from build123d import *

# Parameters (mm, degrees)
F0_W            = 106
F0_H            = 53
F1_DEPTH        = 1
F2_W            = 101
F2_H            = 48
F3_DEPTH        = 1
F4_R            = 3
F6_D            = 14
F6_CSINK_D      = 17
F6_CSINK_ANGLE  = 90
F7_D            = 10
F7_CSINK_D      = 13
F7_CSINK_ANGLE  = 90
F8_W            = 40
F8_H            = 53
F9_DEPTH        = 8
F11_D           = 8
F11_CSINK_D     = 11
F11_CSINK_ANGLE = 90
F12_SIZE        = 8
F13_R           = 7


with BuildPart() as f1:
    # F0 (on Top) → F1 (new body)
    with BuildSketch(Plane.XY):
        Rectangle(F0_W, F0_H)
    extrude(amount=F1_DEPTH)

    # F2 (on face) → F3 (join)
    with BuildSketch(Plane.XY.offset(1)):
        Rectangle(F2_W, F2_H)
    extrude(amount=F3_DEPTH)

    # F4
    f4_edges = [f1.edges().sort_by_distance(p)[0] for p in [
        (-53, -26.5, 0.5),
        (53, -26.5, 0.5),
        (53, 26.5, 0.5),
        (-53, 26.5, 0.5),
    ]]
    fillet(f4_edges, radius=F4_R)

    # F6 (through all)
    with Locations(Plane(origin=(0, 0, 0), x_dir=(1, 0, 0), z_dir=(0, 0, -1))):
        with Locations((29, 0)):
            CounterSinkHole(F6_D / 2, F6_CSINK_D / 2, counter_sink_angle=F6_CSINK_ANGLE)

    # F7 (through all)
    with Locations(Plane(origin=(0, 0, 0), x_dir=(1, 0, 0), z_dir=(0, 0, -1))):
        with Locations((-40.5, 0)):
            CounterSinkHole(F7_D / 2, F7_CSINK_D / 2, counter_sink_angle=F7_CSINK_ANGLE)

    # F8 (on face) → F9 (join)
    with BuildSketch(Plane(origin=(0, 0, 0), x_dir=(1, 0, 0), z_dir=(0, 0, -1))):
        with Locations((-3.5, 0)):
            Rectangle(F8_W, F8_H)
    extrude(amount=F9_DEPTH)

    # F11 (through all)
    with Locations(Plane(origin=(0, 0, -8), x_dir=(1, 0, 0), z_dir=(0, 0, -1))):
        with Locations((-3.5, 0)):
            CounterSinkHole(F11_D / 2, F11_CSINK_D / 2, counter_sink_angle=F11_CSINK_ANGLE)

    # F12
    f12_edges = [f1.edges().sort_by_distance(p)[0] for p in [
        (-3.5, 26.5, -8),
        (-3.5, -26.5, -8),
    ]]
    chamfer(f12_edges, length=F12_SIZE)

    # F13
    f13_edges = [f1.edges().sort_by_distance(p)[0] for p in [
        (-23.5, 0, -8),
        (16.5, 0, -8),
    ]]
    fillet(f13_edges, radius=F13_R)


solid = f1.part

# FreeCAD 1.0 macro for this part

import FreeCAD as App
import Part
import Sketcher
from FreeCAD import Vector


def edges_at(feature, points):
    """Names of the edges that pass closest to the given points."""
    edges = feature.Shape.Edges
    near = lambda p: min(range(len(edges)), key=lambda i: edges[i].distToShape(Part.Vertex(*p))[0])
    return sorted({f"Edge{near(p) + 1}" for p in points})


def add_polygon(sketch, points):
    """Adds a closed chain of lines whose ends are joined by coincident constraints."""
    first, n = sketch.GeometryCount, len(points)
    for a, b in zip(points, points[1:] + points[:1]):
        sketch.addGeometry(Part.LineSegment(App.Vector(*a, 0), App.Vector(*b, 0)), False)
    for i in range(n):
        sketch.addConstraint(Sketcher.Constraint("Coincident", first + i, 2, first + (i + 1) % n, 1))

doc = App.newDocument("Part")
params = doc.addObject("Spreadsheet::Sheet", "Params")
for row, (alias, value) in enumerate([
    ("sketch1_width", "106 mm"),
    ("sketch1_height", "53 mm"),
    ("pad1_length", "1 mm"),
    ("sketch2_width", "101 mm"),
    ("sketch2_height", "48 mm"),
    ("pad2_length", "1 mm"),
    ("fillet_radius", "3 mm"),
    ("sketch3_diameter", "14 mm"),
    ("hole_diameter", "14 mm"),
    ("hole_csink_diameter", "17 mm"),
    ("sketch4_diameter", "10 mm"),
    ("hole2_diameter", "10 mm"),
    ("hole2_csink_diameter", "13 mm"),
    ("sketch5_width", "40 mm"),
    ("sketch5_height", "53 mm"),
    ("pad3_length", "8 mm"),
    ("sketch6_diameter", "8 mm"),
    ("hole3_diameter", "8 mm"),
    ("hole3_csink_diameter", "11 mm"),
    ("chamfer_size", "8 mm"),
    ("fillet2_radius", "7 mm"),
], start=1):
    params.set(f"A{row}", alias)
    params.set(f"B{row}", "=" + value)
    params.setAlias(f"B{row}", alias)

body = doc.addObject("PartDesign::Body", "Body")

sketch1 = body.newObject("Sketcher::SketchObject", "Sketch")
sketch1.AttachmentSupport = (doc.getObject("XY_Plane"), [""])
sketch1.MapMode = "FlatFace"
add_polygon(sketch1, [(-53, 26.5), (-53, -26.5), (53, -26.5), (53, 26.5)])
sketch1.addConstraint([
    Sketcher.Constraint("Vertical", 0),
    Sketcher.Constraint("Horizontal", 1),
    Sketcher.Constraint("Vertical", 2),
    Sketcher.Constraint("Horizontal", 3),
    Sketcher.Constraint("Symmetric", 0, 2, 2, 2, -1, 1),
    Sketcher.Constraint("DistanceX", 1, 1, 1, 2, 106.0),
    Sketcher.Constraint("DistanceY", 0, 2, 0, 1, 53.0),
])
sketch1.setExpression("Constraints[9]", "Params.sketch1_width")
sketch1.setExpression("Constraints[10]", "Params.sketch1_height")
pad1 = body.newObject("PartDesign::Pad", "Pad")
pad1.Profile = sketch1
pad1.setExpression("Length", "Params.pad1_length")

sketch2 = body.newObject("Sketcher::SketchObject", "Sketch001")
sketch2.AttachmentSupport = (doc.getObject("XY_Plane"), [""])
sketch2.MapMode = "FlatFace"
sketch2.AttachmentOffset = App.Placement(Vector(0, 0, 1), App.Rotation())
add_polygon(sketch2, [(-50.5, 24), (-50.5, -24), (50.5, -24), (50.5, 24)])
sketch2.addConstraint([
    Sketcher.Constraint("Vertical", 0),
    Sketcher.Constraint("Horizontal", 1),
    Sketcher.Constraint("Vertical", 2),
    Sketcher.Constraint("Horizontal", 3),
    Sketcher.Constraint("Symmetric", 0, 2, 2, 2, -1, 1),
    Sketcher.Constraint("DistanceX", 1, 1, 1, 2, 101.0),
    Sketcher.Constraint("DistanceY", 0, 2, 0, 1, 48.0),
])
sketch2.setExpression("Constraints[9]", "Params.sketch2_width")
sketch2.setExpression("Constraints[10]", "Params.sketch2_height")
pad2 = body.newObject("PartDesign::Pad", "Pad001")
pad2.Profile = sketch2
pad2.setExpression("Length", "Params.pad2_length")
doc.recompute()

fillet = body.newObject("PartDesign::Fillet", "Fillet")
fillet.Base = (pad2, edges_at(pad2, [
    (-53, -26.5, 0.5),
    (53, -26.5, 0.5),
    (53, 26.5, 0.5),
    (-53, 26.5, 0.5),
]))
fillet.setExpression("Radius", "Params.fillet_radius")

sketch3 = body.newObject("Sketcher::SketchObject", "Sketch002")
sketch3.AttachmentSupport = (doc.getObject("XY_Plane"), [""])
sketch3.MapMode = "FlatFace"
sketch3.addGeometry(Part.Circle(Vector(29, 0, 0), Vector(0, 0, 1), 7), False)
sketch3.addConstraint([
    Sketcher.Constraint("PointOnObject", 0, 3, -1),
    Sketcher.Constraint("Diameter", 0, 14.0),
    Sketcher.Constraint("DistanceX", -1, 1, 0, 3, 29.0),
])
sketch3.setExpression("Constraints[1]", "Params.sketch3_diameter")
doc.recompute()
hole = body.newObject("PartDesign::Hole", "Hole")
hole.Profile = sketch3
hole.ThreadType = "None"
hole.setExpression("Diameter", "Params.hole_diameter")
hole.DepthType = "ThroughAll"
hole.HoleCutType = "Countersink"
hole.setExpression("HoleCutDiameter", "Params.hole_csink_diameter")
hole.HoleCutCountersinkAngle = 90
hole.Reversed = True

sketch4 = body.newObject("Sketcher::SketchObject", "Sketch003")
sketch4.AttachmentSupport = (doc.getObject("XY_Plane"), [""])
sketch4.MapMode = "FlatFace"
sketch4.addGeometry(Part.Circle(Vector(-40.5, 0, 0), Vector(0, 0, 1), 5), False)
sketch4.addConstraint([
    Sketcher.Constraint("PointOnObject", 0, 3, -1),
    Sketcher.Constraint("Diameter", 0, 10.0),
    Sketcher.Constraint("DistanceX", 0, 3, -1, 1, 40.5),
])
sketch4.setExpression("Constraints[1]", "Params.sketch4_diameter")
doc.recompute()
hole2 = body.newObject("PartDesign::Hole", "Hole001")
hole2.Profile = sketch4
hole2.ThreadType = "None"
hole2.setExpression("Diameter", "Params.hole2_diameter")
hole2.DepthType = "ThroughAll"
hole2.HoleCutType = "Countersink"
hole2.setExpression("HoleCutDiameter", "Params.hole2_csink_diameter")
hole2.HoleCutCountersinkAngle = 90
hole2.Reversed = True

sketch5 = body.newObject("Sketcher::SketchObject", "Sketch004")
sketch5.AttachmentSupport = (doc.getObject("XY_Plane"), [""])
sketch5.MapMode = "FlatFace"
add_polygon(sketch5, [(-23.5, -26.5), (-23.5, 26.5), (16.5, 26.5), (16.5, -26.5)])
sketch5.addConstraint([
    Sketcher.Constraint("Vertical", 0),
    Sketcher.Constraint("Horizontal", 1),
    Sketcher.Constraint("Vertical", 2),
    Sketcher.Constraint("Horizontal", 3),
    Sketcher.Constraint("DistanceX", 1, 1, 1, 2, 40.0),
    Sketcher.Constraint("DistanceY", 0, 1, 0, 2, 53.0),
    Sketcher.Constraint("DistanceX", 0, 2, -1, 1, 23.5),
    Sketcher.Constraint("DistanceY", -1, 1, 0, 2, 26.5),
])
sketch5.setExpression("Constraints[8]", "Params.sketch5_width")
sketch5.setExpression("Constraints[9]", "Params.sketch5_height")
pad3 = body.newObject("PartDesign::Pad", "Pad002")
pad3.Profile = sketch5
pad3.setExpression("Length", "Params.pad3_length")
pad3.Reversed = True

sketch6 = body.newObject("Sketcher::SketchObject", "Sketch005")
sketch6.AttachmentSupport = (doc.getObject("XY_Plane"), [""])
sketch6.MapMode = "FlatFace"
sketch6.AttachmentOffset = App.Placement(Vector(0, 0, -8), App.Rotation())
sketch6.addGeometry(Part.Circle(Vector(-3.5, 0, 0), Vector(0, 0, 1), 4), False)
sketch6.addConstraint([
    Sketcher.Constraint("PointOnObject", 0, 3, -1),
    Sketcher.Constraint("Diameter", 0, 8.0),
    Sketcher.Constraint("DistanceX", 0, 3, -1, 1, 3.5),
])
sketch6.setExpression("Constraints[1]", "Params.sketch6_diameter")
doc.recompute()
hole3 = body.newObject("PartDesign::Hole", "Hole002")
hole3.Profile = sketch6
hole3.ThreadType = "None"
hole3.setExpression("Diameter", "Params.hole3_diameter")
hole3.DepthType = "ThroughAll"
hole3.HoleCutType = "Countersink"
hole3.setExpression("HoleCutDiameter", "Params.hole3_csink_diameter")
hole3.HoleCutCountersinkAngle = 90
hole3.Reversed = True
doc.recompute()

chamfer = body.newObject("PartDesign::Chamfer", "Chamfer")
chamfer.Base = (hole3, edges_at(hole3, [(-3.5, 26.5, -8), (-3.5, -26.5, -8)]))
chamfer.setExpression("Size", "Params.chamfer_size")
doc.recompute()

fillet2 = body.newObject("PartDesign::Fillet", "Fillet001")
fillet2.Base = (chamfer, edges_at(chamfer, [(-23.5, 0, -8), (16.5, 0, -8)]))
fillet2.setExpression("Radius", "Params.fillet2_radius")

doc.recompute()
